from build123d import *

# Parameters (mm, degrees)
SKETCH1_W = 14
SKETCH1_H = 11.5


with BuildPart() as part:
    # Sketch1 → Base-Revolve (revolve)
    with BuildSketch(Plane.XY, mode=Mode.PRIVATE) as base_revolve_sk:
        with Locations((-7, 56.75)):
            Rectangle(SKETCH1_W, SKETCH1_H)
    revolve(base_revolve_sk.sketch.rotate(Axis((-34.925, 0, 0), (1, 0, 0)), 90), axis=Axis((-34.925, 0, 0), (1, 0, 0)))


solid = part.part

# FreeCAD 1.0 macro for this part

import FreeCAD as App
import Part
import Sketcher

V = App.Vector

doc = App.newDocument("Part")
body = doc.addObject("PartDesign::Body", "Body")

sketch1 = body.newObject("Sketcher::SketchObject", "Sketch")
sketch1.AttachmentSupport = (doc.getObject("XY_Plane"), [""])
sketch1.MapMode = "FlatFace"
sketch1.addGeometry([
    Part.LineSegment(V(-14, 62.5, 0), V(-14, 51, 0)),
    Part.LineSegment(V(-14, 51, 0), V(0, 51, 0)),
    Part.LineSegment(V(0, 51, 0), V(0, 62.5, 0)),
    Part.LineSegment(V(0, 62.5, 0), V(-14, 62.5, 0)),
], False)
sketch1.addConstraint([
    Sketcher.Constraint("Coincident", 0, 2, 1, 1),
    Sketcher.Constraint("Coincident", 1, 2, 2, 1),
    Sketcher.Constraint("Coincident", 2, 2, 3, 1),
    Sketcher.Constraint("Coincident", 3, 2, 0, 1),
    Sketcher.Constraint("Vertical", 0),
    Sketcher.Constraint("Horizontal", 1),
    Sketcher.Constraint("Vertical", 2),
    Sketcher.Constraint("Horizontal", 3),
    Sketcher.Constraint("PointOnObject", 1, 2, -2),
    Sketcher.Constraint("DistanceX", 1, 1, 1, 2, 14.0),
    Sketcher.Constraint("DistanceY", 0, 2, 0, 1, 11.5),
    Sketcher.Constraint("DistanceY", -1, 1, 0, 2, 51.0),
])
revolution = body.newObject("PartDesign::Revolution", "Revolution")
revolution.Profile = sketch1
revolution.ReferenceAxis = (sketch1, ["H_Axis"])
revolution.Angle = 360

doc.recompute()
